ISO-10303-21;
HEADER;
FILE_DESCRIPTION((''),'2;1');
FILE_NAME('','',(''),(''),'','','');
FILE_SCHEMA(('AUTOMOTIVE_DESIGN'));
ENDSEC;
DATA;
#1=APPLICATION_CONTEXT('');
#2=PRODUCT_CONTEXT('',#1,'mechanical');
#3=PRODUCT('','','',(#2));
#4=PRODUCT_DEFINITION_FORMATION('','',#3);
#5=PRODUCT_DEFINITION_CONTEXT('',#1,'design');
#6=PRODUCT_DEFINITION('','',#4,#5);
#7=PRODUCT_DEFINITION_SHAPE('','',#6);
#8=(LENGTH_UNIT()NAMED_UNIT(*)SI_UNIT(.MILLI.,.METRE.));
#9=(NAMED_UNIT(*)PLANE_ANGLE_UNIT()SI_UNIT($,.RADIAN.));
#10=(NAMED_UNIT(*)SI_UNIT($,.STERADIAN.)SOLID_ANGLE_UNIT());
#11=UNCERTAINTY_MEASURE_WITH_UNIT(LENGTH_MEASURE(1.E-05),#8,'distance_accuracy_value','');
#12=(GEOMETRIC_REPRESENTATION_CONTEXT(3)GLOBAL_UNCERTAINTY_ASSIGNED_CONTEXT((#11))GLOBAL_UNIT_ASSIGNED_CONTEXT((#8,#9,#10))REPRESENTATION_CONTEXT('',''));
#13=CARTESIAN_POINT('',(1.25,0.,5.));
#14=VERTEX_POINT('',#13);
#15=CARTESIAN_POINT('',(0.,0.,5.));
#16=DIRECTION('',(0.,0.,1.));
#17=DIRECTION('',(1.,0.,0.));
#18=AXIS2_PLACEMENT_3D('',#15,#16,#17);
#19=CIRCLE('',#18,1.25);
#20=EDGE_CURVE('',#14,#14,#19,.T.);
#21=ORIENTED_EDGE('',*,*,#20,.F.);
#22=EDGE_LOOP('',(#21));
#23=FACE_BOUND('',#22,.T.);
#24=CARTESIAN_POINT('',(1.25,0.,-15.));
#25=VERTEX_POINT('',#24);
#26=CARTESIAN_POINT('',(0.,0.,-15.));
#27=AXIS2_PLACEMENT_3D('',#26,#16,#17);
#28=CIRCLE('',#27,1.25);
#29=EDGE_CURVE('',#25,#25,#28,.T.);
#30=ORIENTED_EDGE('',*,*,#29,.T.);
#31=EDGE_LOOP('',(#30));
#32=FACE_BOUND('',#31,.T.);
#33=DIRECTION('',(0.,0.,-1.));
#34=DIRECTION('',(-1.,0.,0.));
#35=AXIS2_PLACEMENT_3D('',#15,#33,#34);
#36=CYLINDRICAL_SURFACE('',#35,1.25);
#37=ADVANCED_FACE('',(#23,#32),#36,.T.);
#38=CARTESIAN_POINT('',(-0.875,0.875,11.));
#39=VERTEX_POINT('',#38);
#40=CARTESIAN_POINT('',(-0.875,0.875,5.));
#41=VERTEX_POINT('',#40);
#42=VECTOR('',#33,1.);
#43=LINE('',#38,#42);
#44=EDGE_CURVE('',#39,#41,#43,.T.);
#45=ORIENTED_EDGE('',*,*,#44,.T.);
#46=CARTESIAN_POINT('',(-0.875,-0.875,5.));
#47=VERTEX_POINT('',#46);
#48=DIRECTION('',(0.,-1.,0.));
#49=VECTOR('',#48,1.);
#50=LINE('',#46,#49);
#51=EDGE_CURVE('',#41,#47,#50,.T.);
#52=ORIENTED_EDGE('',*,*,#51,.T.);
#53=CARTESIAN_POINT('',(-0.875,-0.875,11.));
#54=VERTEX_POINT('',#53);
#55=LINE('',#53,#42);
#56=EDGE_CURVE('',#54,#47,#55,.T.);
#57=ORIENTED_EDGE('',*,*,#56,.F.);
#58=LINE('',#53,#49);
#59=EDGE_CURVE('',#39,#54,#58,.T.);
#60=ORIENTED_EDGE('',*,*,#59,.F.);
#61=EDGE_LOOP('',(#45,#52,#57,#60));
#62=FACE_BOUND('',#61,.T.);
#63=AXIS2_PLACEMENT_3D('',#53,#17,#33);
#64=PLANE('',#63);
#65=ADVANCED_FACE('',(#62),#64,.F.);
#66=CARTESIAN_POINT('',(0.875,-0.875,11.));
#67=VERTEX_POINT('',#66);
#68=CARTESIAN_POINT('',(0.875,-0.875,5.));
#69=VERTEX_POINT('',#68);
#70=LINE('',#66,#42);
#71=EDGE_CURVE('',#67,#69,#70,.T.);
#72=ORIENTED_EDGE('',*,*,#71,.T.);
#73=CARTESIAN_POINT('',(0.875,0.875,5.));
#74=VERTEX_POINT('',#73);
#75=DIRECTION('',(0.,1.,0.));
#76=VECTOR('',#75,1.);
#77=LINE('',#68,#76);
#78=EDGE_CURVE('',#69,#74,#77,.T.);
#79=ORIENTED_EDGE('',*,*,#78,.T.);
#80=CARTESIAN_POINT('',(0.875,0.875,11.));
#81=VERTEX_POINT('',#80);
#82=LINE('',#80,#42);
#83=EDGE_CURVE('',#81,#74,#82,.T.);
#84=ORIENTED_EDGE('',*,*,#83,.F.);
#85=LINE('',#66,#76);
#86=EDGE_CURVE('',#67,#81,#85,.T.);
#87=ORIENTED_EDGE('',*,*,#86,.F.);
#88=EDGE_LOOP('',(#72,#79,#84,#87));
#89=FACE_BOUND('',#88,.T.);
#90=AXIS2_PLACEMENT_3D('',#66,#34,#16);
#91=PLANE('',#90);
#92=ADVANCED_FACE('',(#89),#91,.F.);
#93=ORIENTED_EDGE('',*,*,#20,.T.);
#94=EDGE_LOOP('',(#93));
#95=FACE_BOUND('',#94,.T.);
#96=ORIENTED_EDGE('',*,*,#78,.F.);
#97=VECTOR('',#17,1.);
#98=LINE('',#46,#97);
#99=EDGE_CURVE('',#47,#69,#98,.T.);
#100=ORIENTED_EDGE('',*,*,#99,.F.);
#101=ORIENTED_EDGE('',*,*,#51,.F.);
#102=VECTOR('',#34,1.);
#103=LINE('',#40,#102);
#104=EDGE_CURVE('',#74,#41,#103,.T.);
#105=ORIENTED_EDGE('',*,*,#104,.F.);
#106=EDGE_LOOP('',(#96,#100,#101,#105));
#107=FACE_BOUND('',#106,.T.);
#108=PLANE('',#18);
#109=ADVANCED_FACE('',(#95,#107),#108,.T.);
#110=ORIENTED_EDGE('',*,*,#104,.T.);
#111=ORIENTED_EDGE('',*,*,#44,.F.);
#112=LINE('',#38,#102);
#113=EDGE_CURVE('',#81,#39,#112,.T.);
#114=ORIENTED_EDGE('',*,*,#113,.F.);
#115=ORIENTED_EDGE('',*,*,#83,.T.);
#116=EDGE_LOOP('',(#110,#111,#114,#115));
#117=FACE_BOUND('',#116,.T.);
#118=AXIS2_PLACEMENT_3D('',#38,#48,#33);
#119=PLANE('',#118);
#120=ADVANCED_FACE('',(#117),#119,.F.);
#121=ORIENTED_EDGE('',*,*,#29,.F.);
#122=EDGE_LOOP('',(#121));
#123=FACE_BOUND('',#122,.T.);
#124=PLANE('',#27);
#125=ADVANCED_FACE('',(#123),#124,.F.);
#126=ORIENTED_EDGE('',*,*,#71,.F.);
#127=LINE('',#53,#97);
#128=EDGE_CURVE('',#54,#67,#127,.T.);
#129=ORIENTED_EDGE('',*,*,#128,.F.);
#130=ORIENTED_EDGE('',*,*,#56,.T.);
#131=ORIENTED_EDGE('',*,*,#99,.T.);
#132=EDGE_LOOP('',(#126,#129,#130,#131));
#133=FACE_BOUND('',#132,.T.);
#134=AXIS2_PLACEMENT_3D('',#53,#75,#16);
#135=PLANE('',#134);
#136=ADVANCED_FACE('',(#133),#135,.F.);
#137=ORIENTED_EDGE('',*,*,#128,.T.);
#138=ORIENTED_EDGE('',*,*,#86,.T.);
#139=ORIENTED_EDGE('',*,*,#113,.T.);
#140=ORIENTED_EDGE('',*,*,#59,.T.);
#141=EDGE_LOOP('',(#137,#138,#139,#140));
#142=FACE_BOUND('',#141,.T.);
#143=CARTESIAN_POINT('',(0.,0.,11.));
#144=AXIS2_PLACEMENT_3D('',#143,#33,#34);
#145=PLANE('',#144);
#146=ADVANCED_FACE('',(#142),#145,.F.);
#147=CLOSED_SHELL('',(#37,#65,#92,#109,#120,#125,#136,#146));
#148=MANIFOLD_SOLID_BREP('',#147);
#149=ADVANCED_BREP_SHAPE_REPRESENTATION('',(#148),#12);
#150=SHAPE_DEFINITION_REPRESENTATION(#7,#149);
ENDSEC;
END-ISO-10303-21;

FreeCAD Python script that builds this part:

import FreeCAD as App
import Part
import Sketcher
Q = App.Units.Quantity


def add_polygon(sketch, points):
    """Adds a closed chain of lines whose ends are joined by coincident constraints."""
    first, n = sketch.GeometryCount, len(points)
    for a, b in zip(points, points[1:] + points[:1]):
        sketch.addGeometry(Part.LineSegment(App.Vector(*a, 0), App.Vector(*b, 0)), False)
    for i in range(n):
        sketch.addConstraint(Sketcher.Constraint("Coincident", first + i, 2, first + (i + 1) % n, 1))

doc = App.newDocument("Part")
body = doc.addObject("PartDesign::Body", "Body")

# Sketch on XY plane
sketch1 = body.newObject("Sketcher::SketchObject", "Sketch")
sketch1.AttachmentSupport = (doc.getObject("XY_Plane"), [""])
sketch1.MapMode = "FlatFace"
sketch1.addGeometry(Part.Circle(App.Vector(0, 0, 0), App.Vector(0, 0, 1), 1.25), False)
sketch1.addConstraint([
    Sketcher.Constraint("Coincident", 0, 3, -1, 1),
    Sketcher.Constraint("Diameter", 0, Q("2.5 mm")),
])
pad1 = body.newObject("PartDesign::Pad", "Pad")
pad1.Profile = sketch1
pad1.Length = 5

# Sketch on XY plane
sketch2 = body.newObject("Sketcher::SketchObject", "Sketch001")
sketch2.AttachmentSupport = (doc.getObject("XY_Plane"), [""])
sketch2.MapMode = "FlatFace"
sketch2.AttachmentOffset = App.Placement(App.Vector(0, 0, 5), App.Rotation())
add_polygon(sketch2, [(-0.875, 0.875), (-0.875, -0.875), (0.875, -0.875), (0.875, 0.875)])  # lines 0-3
sketch2.addConstraint([
    Sketcher.Constraint("Vertical", 0),
    Sketcher.Constraint("Horizontal", 1),
    Sketcher.Constraint("Vertical", 2),
    Sketcher.Constraint("Horizontal", 3),
    Sketcher.Constraint("Symmetric", 0, 2, 2, 2, -1, 1),
    Sketcher.Constraint("Equal", 3, 0),
    Sketcher.Constraint("DistanceX", 1, 1, 1, 2, Q("1.75 mm")),
])
pad2 = body.newObject("PartDesign::Pad", "Pad001")
pad2.Profile = sketch2
pad2.Length = 6

# Sketch on XY plane
sketch3 = body.newObject("Sketcher::SketchObject", "Sketch002")
sketch3.AttachmentSupport = (doc.getObject("XY_Plane"), [""])
sketch3.MapMode = "FlatFace"
sketch3.AttachmentOffset = App.Placement(App.Vector(0, 0, -15), App.Rotation())
sketch3.addGeometry(Part.Circle(App.Vector(0, 0, 0), App.Vector(0, 0, 1), 1.25), False)
sketch3.addConstraint([
    Sketcher.Constraint("Coincident", 0, 3, -1, 1),
    Sketcher.Constraint("Diameter", 0, Q("2.5 mm")),
])
pad3 = body.newObject("PartDesign::Pad", "Pad002")
pad3.Profile = sketch3
pad3.Length = 15

doc.recompute()
